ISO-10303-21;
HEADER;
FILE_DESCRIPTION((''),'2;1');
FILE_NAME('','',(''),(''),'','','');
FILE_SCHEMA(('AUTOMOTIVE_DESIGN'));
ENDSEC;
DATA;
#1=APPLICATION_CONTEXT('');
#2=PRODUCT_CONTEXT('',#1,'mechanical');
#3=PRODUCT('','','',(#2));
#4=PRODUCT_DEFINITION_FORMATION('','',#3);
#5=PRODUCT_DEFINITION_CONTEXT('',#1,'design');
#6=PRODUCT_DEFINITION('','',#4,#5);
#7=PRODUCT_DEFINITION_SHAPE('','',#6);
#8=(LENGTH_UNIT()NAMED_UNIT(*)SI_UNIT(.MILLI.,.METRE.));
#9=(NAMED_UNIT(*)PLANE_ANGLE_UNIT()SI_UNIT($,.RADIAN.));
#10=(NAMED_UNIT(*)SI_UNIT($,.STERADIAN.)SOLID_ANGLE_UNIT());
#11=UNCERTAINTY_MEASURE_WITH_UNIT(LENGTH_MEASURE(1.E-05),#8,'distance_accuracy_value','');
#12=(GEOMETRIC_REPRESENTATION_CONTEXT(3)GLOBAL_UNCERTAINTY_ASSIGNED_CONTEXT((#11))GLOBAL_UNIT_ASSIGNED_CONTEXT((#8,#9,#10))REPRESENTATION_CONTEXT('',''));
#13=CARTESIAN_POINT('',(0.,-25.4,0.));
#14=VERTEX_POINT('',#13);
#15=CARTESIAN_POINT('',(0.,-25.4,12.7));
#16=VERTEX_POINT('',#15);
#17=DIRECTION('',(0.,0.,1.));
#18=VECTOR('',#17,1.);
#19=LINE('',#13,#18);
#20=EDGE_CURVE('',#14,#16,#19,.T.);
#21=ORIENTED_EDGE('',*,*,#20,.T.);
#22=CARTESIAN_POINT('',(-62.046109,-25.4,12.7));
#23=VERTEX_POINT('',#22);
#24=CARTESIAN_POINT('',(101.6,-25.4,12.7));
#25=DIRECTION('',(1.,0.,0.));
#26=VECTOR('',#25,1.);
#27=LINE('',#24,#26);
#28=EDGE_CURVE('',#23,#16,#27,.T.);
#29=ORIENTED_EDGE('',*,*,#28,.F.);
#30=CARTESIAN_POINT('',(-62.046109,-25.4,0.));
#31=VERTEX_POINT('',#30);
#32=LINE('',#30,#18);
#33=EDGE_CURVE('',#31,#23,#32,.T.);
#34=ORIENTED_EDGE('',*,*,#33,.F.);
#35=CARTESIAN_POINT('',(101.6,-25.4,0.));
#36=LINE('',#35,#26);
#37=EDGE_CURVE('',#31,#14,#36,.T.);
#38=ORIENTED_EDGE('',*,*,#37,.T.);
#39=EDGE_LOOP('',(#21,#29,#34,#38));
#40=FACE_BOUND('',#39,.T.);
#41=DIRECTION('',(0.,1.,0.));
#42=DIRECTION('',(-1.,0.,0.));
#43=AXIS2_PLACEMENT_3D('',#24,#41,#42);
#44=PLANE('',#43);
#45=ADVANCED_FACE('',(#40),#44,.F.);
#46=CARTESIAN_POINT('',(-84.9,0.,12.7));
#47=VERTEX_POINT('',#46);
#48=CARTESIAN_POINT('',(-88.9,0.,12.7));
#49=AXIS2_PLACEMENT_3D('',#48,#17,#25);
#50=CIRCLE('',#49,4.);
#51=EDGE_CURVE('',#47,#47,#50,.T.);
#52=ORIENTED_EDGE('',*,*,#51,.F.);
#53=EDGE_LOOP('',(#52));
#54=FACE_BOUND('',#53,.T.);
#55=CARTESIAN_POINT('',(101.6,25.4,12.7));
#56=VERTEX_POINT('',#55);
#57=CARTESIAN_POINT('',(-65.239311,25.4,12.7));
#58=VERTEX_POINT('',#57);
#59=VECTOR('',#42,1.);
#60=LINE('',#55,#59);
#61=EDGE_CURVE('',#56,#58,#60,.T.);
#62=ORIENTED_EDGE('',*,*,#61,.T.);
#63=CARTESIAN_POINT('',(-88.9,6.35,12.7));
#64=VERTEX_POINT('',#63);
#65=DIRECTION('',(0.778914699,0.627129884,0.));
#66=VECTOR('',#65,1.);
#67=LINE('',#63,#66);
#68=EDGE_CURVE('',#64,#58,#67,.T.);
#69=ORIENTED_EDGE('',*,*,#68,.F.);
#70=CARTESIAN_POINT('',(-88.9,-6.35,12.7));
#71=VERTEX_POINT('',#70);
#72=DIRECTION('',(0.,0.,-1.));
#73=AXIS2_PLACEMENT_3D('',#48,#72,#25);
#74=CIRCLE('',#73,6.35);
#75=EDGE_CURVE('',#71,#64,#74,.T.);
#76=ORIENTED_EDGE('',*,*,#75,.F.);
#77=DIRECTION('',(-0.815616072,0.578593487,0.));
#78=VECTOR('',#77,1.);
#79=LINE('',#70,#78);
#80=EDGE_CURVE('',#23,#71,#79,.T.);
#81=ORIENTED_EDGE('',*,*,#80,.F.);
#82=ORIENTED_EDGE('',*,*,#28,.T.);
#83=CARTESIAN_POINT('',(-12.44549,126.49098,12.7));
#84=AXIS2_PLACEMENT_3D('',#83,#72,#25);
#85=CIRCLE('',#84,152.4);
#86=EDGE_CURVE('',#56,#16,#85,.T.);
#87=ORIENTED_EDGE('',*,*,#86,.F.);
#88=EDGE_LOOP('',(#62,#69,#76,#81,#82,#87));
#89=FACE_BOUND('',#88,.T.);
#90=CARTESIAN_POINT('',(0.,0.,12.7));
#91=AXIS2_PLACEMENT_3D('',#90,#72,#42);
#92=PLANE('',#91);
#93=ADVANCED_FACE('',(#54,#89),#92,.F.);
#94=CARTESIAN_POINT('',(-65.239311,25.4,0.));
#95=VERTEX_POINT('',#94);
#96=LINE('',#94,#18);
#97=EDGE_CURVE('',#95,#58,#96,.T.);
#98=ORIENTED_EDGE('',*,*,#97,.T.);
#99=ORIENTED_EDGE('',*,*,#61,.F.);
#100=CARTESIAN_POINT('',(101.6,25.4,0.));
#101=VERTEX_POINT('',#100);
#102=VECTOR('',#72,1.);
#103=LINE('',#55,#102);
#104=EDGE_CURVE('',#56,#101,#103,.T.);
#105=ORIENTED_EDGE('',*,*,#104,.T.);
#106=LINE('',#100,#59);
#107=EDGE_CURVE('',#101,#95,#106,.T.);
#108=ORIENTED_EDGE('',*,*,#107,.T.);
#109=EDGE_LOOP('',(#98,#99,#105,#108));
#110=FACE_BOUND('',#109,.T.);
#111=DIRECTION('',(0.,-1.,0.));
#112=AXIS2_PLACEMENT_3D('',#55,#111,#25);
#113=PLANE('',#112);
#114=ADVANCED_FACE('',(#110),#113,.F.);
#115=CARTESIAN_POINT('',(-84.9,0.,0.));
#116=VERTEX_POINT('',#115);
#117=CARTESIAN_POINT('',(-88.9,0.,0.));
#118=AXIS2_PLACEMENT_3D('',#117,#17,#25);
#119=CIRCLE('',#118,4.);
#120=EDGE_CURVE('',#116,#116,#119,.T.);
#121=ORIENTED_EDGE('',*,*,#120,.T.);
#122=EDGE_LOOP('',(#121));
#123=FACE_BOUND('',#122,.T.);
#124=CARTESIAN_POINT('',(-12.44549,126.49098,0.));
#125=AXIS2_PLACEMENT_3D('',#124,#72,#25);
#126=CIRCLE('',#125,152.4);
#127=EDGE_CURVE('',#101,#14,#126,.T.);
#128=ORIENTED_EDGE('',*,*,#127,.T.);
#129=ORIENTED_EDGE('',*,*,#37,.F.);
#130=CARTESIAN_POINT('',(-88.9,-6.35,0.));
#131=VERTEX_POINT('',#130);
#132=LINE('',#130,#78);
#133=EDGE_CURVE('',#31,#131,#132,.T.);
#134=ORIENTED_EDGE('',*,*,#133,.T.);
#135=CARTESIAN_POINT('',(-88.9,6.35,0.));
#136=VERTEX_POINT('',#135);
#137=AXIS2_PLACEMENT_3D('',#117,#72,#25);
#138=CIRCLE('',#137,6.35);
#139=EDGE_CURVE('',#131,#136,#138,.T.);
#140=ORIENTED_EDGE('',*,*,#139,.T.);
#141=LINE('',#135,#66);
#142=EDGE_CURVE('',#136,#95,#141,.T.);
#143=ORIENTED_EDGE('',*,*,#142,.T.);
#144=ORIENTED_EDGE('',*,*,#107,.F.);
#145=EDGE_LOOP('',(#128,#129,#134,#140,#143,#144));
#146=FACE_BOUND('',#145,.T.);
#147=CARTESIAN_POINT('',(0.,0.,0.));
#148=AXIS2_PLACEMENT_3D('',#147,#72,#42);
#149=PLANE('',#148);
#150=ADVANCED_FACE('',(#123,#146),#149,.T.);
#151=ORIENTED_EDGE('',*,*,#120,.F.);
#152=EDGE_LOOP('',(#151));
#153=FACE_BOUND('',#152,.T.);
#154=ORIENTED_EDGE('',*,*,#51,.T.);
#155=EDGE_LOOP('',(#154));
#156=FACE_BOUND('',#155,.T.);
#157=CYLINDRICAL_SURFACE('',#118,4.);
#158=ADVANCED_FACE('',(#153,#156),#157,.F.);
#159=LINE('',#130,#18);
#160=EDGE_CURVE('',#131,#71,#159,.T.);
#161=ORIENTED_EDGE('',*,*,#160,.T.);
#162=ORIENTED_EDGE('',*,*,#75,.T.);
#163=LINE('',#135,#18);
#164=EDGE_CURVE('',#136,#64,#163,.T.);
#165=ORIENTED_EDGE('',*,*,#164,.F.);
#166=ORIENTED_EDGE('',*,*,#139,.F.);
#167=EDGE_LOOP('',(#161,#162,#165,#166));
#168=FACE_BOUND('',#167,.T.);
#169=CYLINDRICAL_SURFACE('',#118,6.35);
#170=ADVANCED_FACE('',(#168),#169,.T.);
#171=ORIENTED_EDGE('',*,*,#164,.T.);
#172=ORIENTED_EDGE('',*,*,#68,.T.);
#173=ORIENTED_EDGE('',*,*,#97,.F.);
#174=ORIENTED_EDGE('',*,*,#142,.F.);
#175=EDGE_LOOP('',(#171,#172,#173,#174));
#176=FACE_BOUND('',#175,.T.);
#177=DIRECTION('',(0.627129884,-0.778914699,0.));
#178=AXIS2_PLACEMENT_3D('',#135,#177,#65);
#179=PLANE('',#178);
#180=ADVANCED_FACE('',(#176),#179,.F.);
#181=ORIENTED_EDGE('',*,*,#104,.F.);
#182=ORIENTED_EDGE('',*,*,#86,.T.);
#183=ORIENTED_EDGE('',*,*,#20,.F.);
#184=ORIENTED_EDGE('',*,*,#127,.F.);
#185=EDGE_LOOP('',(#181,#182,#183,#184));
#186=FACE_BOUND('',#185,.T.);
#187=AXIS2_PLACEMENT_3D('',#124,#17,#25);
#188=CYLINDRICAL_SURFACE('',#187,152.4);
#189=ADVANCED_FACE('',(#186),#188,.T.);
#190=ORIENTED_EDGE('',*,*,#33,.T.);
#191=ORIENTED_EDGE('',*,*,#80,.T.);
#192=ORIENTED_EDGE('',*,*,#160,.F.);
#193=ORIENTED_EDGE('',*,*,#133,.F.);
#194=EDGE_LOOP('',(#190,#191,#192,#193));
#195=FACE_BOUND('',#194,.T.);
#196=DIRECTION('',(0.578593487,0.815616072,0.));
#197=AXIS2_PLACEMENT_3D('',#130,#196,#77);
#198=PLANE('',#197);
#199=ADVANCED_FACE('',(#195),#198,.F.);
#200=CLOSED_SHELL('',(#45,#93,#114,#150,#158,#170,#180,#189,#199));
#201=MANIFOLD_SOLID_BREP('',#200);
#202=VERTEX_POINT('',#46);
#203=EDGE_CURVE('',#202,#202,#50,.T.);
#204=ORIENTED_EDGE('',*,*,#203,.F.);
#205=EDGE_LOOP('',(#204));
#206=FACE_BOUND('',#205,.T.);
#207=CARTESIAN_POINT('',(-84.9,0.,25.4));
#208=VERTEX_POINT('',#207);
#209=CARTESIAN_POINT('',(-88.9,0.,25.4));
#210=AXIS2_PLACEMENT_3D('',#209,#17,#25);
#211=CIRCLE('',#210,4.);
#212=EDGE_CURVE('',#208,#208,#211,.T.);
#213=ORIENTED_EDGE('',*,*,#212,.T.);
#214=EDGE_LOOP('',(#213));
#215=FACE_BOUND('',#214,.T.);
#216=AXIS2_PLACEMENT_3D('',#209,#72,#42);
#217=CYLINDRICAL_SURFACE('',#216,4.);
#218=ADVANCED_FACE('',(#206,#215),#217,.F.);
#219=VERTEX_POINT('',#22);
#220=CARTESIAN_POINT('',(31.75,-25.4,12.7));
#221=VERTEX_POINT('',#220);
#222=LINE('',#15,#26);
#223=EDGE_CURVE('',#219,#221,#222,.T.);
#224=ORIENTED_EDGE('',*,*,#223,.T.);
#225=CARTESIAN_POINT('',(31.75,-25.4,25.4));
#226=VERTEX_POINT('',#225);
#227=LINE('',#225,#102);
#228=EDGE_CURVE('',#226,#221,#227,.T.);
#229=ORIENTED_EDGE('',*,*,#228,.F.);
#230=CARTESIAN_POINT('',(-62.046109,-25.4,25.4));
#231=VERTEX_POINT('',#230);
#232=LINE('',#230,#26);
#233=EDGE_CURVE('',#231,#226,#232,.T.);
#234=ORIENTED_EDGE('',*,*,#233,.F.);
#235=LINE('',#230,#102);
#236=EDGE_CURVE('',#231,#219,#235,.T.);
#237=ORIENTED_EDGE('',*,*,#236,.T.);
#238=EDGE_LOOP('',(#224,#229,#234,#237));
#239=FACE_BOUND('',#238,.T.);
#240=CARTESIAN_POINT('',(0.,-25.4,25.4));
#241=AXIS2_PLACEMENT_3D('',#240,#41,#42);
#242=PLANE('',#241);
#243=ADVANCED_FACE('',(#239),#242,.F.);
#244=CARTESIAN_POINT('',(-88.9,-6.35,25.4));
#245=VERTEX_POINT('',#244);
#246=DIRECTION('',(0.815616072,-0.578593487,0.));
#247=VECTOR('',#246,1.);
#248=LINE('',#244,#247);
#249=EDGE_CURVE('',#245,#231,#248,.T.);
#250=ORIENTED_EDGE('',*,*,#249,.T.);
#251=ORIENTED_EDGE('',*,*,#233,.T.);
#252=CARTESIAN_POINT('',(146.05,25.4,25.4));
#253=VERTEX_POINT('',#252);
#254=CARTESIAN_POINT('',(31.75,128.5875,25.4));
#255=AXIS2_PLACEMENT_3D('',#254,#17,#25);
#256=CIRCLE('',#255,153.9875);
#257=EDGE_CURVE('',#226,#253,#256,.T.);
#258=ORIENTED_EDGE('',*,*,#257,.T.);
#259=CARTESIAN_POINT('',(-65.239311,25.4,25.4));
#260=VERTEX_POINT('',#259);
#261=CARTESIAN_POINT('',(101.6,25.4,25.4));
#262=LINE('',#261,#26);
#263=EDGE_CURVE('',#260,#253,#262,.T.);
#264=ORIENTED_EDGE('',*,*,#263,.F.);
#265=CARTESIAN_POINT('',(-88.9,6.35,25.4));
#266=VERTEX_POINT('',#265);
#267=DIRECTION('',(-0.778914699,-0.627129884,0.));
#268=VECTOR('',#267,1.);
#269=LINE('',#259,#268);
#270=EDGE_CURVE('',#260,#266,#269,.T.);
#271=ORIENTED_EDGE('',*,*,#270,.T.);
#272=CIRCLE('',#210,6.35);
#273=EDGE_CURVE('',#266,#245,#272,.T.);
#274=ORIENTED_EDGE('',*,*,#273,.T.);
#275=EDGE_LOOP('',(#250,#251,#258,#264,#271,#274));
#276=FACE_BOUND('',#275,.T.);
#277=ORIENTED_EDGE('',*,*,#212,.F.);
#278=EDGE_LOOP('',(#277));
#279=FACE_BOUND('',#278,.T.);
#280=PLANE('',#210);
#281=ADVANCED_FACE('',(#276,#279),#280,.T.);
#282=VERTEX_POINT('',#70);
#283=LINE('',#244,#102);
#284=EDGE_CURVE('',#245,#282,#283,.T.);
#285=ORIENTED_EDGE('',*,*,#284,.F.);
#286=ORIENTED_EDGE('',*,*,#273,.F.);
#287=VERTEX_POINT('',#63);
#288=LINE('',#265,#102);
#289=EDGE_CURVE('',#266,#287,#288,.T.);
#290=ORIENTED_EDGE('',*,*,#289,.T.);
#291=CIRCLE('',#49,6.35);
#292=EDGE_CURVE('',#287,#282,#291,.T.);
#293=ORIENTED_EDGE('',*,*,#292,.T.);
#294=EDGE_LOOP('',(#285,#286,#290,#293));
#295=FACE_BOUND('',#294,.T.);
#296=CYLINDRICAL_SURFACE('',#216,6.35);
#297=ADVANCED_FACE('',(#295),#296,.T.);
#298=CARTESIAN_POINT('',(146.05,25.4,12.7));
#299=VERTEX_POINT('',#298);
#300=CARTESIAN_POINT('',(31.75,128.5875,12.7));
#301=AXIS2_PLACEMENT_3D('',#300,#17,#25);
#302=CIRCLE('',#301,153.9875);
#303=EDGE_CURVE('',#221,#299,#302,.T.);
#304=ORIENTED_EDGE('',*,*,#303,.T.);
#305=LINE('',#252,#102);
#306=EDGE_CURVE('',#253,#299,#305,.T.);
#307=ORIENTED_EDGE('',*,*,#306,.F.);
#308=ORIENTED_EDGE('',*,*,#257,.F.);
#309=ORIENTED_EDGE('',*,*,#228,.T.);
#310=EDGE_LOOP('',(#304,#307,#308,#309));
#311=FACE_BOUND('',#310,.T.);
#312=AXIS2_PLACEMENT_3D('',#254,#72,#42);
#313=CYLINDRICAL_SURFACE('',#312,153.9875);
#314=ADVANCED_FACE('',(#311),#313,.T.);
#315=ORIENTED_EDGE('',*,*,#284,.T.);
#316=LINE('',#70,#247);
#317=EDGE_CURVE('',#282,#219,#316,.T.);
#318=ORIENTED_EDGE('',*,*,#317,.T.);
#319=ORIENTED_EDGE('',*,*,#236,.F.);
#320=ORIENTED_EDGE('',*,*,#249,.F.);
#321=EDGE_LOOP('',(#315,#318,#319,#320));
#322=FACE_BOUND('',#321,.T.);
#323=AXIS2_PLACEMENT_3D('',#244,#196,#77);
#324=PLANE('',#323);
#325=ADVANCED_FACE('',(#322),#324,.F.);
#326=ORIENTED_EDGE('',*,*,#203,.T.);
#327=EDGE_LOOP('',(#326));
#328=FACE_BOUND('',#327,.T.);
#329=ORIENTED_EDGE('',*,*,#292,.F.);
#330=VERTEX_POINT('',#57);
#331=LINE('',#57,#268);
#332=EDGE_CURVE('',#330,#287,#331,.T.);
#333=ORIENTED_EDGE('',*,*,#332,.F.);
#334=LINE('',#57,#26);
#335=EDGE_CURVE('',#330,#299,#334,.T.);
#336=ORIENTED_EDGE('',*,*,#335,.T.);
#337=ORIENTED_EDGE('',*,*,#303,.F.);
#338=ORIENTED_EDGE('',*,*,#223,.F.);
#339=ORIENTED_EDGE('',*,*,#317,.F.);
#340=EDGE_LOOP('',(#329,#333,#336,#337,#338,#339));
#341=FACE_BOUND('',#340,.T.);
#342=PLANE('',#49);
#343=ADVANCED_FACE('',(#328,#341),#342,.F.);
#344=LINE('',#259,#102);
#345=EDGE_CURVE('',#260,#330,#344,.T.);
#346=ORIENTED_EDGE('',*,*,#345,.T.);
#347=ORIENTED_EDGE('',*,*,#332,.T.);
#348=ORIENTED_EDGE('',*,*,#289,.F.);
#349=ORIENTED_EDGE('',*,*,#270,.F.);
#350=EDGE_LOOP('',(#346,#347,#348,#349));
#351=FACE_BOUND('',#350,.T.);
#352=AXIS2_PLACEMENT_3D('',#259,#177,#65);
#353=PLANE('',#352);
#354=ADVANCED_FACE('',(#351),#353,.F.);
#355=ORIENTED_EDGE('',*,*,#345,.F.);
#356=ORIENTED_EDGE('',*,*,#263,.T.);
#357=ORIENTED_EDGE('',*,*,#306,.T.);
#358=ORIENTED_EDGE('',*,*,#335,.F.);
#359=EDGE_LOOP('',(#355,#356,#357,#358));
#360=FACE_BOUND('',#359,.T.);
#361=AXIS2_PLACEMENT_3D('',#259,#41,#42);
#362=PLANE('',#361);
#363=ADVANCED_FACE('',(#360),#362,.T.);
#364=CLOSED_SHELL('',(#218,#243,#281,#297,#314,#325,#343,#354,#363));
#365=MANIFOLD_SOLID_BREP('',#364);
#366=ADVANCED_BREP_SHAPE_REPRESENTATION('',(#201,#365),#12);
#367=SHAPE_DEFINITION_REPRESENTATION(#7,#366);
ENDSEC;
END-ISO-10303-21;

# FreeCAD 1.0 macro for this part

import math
import FreeCAD as App
import Part
import Sketcher
Q = App.Units.Quantity


def add_polygon(sketch, points):
    """Adds a closed chain of lines whose ends are joined by coincident constraints."""
    first, n = sketch.GeometryCount, len(points)
    for a, b in zip(points, points[1:] + points[:1]):
        sketch.addGeometry(Part.LineSegment(App.Vector(*a, 0), App.Vector(*b, 0)), False)
    for i in range(n):
        sketch.addConstraint(Sketcher.Constraint("Coincident", first + i, 2, first + (i + 1) % n, 1))

doc = App.newDocument("Part")
body = doc.addObject("PartDesign::Body", "Body")

sketch1 = doc.addObject("Sketcher::SketchObject", "Sketch")
body.addObject(sketch1)
sketch1.AttachmentSupport = (doc.XY_Plane, [""])
sketch1.MapMode = "FlatFace"
add_polygon(sketch1, [(-102, 25), (-102, -25), (102, -25), (102, 25)])
sketch1.addConstraint([
    Sketcher.Constraint("Vertical", 0),
    Sketcher.Constraint("Horizontal", 1),
    Sketcher.Constraint("Vertical", 2),
    Sketcher.Constraint("Horizontal", 3),
    Sketcher.Constraint("Symmetric", 0, 2, 2, 2, -1, 1),
    Sketcher.Constraint("DistanceX", 1, 1, 1, 2, Q("8 in")),
    Sketcher.Constraint("DistanceY", 0, 2, 0, 1, Q("2 in")),
])
pad1 = doc.addObject("PartDesign::Pad", "Pad")
body.addObject(pad1)
pad1.Profile = sketch1
pad1.Length = Q("0.5 in")

sketch2 = doc.addObject("Sketcher::SketchObject", "Sketch001")
body.addObject(sketch2)
sketch2.AttachmentSupport = (doc.XY_Plane, [""])
sketch2.MapMode = "FlatFace"
sketch2.AttachmentOffset = App.Placement(App.Vector(0, 0, 0.5 * 25.4), App.Rotation())
sketch2.addGeometry(Part.Circle(App.Vector(-88.9, 0, 0), App.Vector(0, 0, 1), 4), False)
sketch2.addConstraint([
    Sketcher.Constraint("PointOnObject", 0, 3, -1),
    Sketcher.Constraint("DistanceX", 0, 3, -1, 1, Q("3.5 in")),
    Sketcher.Constraint("Diameter", 0, Q("8 mm")),
])
pocket1 = doc.addObject("PartDesign::Pocket", "Pocket")
body.addObject(pocket1)
pocket1.Profile = sketch2
pocket1.Type = "ThroughAll"

sketch3 = doc.addObject("Sketcher::SketchObject", "Sketch002")
body.addObject(sketch3)
sketch3.AttachmentSupport = (doc.XY_Plane, [""])
sketch3.MapMode = "FlatFace"
sketch3.AttachmentOffset = App.Placement(App.Vector(0, 0, 0.5 * 25.4), App.Rotation())
sketch3.addGeometry([
    Part.LineSegment(App.Vector(-62, -25, 0), App.Vector(-89, -6, 0)),
    Part.ArcOfCircle(Part.Circle(App.Vector(-89, 0, 0), App.Vector(0, 0, 1), 6), math.radians(90), math.radians(270)),
    Part.LineSegment(App.Vector(-89, 6, 0), App.Vector(-65, 25, 0)),
    Part.LineSegment(App.Vector(-65, 25, 0), App.Vector(-102, 25, 0)),
    Part.LineSegment(App.Vector(-102, 25, 0), App.Vector(-102, -25, 0)),
    Part.LineSegment(App.Vector(-102, -25, 0), App.Vector(-62, -25, 0)),
    Part.LineSegment(App.Vector(102, -25, 0), App.Vector(102, 25, 0)),
    Part.ArcOfCircle(Part.Circle(App.Vector(-12, 126, 0), App.Vector(0, 0, 1), 152), math.radians(-85), math.radians(-42)),
    Part.LineSegment(App.Vector(0, -25, 0), App.Vector(102, -25, 0)),
], False)
sketch3.addConstraint([
    Sketcher.Constraint("Coincident", 0, 2, 1, 2),
    Sketcher.Constraint("Coincident", 1, 1, 2, 1),
    Sketcher.Constraint("Coincident", 2, 2, 3, 1),
    Sketcher.Constraint("Coincident", 3, 2, 4, 1),
    Sketcher.Constraint("Coincident", 4, 2, 5, 1),
    Sketcher.Constraint("Coincident", 5, 2, 0, 1),
    Sketcher.Constraint("Coincident", 6, 2, 7, 2),
    Sketcher.Constraint("Coincident", 7, 1, 8, 1),
    Sketcher.Constraint("Coincident", 8, 2, 6, 1),
    Sketcher.Constraint("Horizontal", 3),
    Sketcher.Constraint("Vertical", 4),
    Sketcher.Constraint("Horizontal", 5),
    Sketcher.Constraint("Vertical", 6),
    Sketcher.Constraint("Horizontal", 8),
    Sketcher.Constraint("Symmetric", 4, 2, 6, 2, -1, 1),
    Sketcher.Constraint("Symmetric", 0, 2, 1, 1, -1),
    Sketcher.Constraint("PointOnObject", 7, 1, -2),
    Sketcher.Constraint("Horizontal", 3, 2, 6, 2),
    Sketcher.Constraint("Horizontal", 5, 2, 7, 1),
    Sketcher.Constraint("Vertical", 1, 3, 0, 2),
    Sketcher.Constraint("Radius", 7, Q("6 in")),
    Sketcher.Constraint("DistanceX", 8, 1, 8, 2, Q("4 in")),
    Sketcher.Constraint("DistanceY", 4, 2, 4, 1, Q("2 in")),
    Sketcher.Constraint("Radius", 1, Q("0.25 in")),
    Sketcher.Constraint("DistanceX", 1, 3, -1, 1, Q("3.5 in")),
    Sketcher.Constraint("DistanceX", 3, 2, 3, 1, Q("36.360689 mm")),
    Sketcher.Constraint("DistanceX", 5, 1, 5, 2, Q("39.553891 mm")),
])
pocket2 = doc.addObject("PartDesign::Pocket", "Pocket001")
body.addObject(pocket2)
pocket2.Profile = sketch3
pocket2.Type = "ThroughAll"
body2 = doc.addObject("PartDesign::Body", "Body001")

sketch4 = doc.addObject("Sketcher::SketchObject", "Sketch003")
body2.addObject(sketch4)
sketch4.AttachmentSupport = (doc.getObject("XY_Plane001"), [""])
sketch4.MapMode = "FlatFace"
sketch4.AttachmentOffset = App.Placement(App.Vector(0, 0, 0.5 * 25.4), App.Rotation())
sketch4.addGeometry([
    Part.LineSegment(App.Vector(-65, 25, 0), App.Vector(-89, 6, 0)),
    Part.ArcOfCircle(Part.Circle(App.Vector(-89, 0, 0), App.Vector(0, 0, 1), 6), math.radians(90), math.radians(270)),
    Part.LineSegment(App.Vector(-89, -6, 0), App.Vector(-62, -25, 0)),
    Part.LineSegment(App.Vector(-62, -25, 0), App.Vector(32, -25, 0)),
    Part.ArcOfCircle(Part.Circle(App.Vector(32, 129, 0), App.Vector(0, 0, 1), 154), math.radians(-90), math.radians(-42)),
    Part.LineSegment(App.Vector(146, 25, 0), App.Vector(-65, 25, 0)),
], False)
sketch4.addConstraint([
    Sketcher.Constraint("Coincident", 0, 2, 1, 1),
    Sketcher.Constraint("Coincident", 1, 2, 2, 1),
    Sketcher.Constraint("Coincident", 2, 2, 3, 1),
    Sketcher.Constraint("Tangent", 3, 2, 4, 1),
    Sketcher.Constraint("Coincident", 4, 2, 5, 1),
    Sketcher.Constraint("Coincident", 5, 2, 0, 1),
    Sketcher.Constraint("Horizontal", 3),
    Sketcher.Constraint("Horizontal", 5),
    Sketcher.Constraint("Symmetric", 0, 2, 1, 2, -1),
    Sketcher.Constraint("Vertical", 1, 3, 0, 2),
    Sketcher.Constraint("Radius", 1, Q("0.25 in")),
    Sketcher.Constraint("DistanceY", 2, 2, -1, 1, Q("1 in")),
    Sketcher.Constraint("DistanceY", -1, 1, 4, 2, Q("1 in")),
    Sketcher.Constraint("Radius", 4, Q("6.0625 in")),
    Sketcher.Constraint("DistanceX", 1, 3, -1, 1, Q("3.5 in")),
    Sketcher.Constraint("DistanceX", -1, 1, 4, 3, Q("1.25 in")),
    Sketcher.Constraint("DistanceX", 3, 1, 3, 2, Q("93.796109 mm")),
    Sketcher.Constraint("DistanceX", 5, 2, 5, 1, Q("211.289311 mm")),
])
pad2 = doc.addObject("PartDesign::Pad", "Pad001")
body2.addObject(pad2)
pad2.Profile = sketch4
pad2.Length = Q("0.5 in")

sketch5 = doc.addObject("Sketcher::SketchObject", "Sketch004")
body2.addObject(sketch5)
sketch5.AttachmentSupport = (doc.getObject("XY_Plane001"), [""])
sketch5.MapMode = "FlatFace"
sketch5.AttachmentOffset = App.Placement(App.Vector(0, 0, 1 * 25.4), App.Rotation())
sketch5.addGeometry(Part.Circle(App.Vector(-88.9, 0, 0), App.Vector(0, 0, 1), 4), False)
sketch5.addConstraint([
    Sketcher.Constraint("PointOnObject", 0, 3, -1),
    Sketcher.Constraint("DistanceX", 0, 3, -1, 1, Q("3.5 in")),
    Sketcher.Constraint("Diameter", 0, Q("8 mm")),
])
pocket3 = doc.addObject("PartDesign::Pocket", "Pocket002")
body2.addObject(pocket3)
pocket3.Profile = sketch5
pocket3.Length = Q("0.5 in")

doc.recompute()
